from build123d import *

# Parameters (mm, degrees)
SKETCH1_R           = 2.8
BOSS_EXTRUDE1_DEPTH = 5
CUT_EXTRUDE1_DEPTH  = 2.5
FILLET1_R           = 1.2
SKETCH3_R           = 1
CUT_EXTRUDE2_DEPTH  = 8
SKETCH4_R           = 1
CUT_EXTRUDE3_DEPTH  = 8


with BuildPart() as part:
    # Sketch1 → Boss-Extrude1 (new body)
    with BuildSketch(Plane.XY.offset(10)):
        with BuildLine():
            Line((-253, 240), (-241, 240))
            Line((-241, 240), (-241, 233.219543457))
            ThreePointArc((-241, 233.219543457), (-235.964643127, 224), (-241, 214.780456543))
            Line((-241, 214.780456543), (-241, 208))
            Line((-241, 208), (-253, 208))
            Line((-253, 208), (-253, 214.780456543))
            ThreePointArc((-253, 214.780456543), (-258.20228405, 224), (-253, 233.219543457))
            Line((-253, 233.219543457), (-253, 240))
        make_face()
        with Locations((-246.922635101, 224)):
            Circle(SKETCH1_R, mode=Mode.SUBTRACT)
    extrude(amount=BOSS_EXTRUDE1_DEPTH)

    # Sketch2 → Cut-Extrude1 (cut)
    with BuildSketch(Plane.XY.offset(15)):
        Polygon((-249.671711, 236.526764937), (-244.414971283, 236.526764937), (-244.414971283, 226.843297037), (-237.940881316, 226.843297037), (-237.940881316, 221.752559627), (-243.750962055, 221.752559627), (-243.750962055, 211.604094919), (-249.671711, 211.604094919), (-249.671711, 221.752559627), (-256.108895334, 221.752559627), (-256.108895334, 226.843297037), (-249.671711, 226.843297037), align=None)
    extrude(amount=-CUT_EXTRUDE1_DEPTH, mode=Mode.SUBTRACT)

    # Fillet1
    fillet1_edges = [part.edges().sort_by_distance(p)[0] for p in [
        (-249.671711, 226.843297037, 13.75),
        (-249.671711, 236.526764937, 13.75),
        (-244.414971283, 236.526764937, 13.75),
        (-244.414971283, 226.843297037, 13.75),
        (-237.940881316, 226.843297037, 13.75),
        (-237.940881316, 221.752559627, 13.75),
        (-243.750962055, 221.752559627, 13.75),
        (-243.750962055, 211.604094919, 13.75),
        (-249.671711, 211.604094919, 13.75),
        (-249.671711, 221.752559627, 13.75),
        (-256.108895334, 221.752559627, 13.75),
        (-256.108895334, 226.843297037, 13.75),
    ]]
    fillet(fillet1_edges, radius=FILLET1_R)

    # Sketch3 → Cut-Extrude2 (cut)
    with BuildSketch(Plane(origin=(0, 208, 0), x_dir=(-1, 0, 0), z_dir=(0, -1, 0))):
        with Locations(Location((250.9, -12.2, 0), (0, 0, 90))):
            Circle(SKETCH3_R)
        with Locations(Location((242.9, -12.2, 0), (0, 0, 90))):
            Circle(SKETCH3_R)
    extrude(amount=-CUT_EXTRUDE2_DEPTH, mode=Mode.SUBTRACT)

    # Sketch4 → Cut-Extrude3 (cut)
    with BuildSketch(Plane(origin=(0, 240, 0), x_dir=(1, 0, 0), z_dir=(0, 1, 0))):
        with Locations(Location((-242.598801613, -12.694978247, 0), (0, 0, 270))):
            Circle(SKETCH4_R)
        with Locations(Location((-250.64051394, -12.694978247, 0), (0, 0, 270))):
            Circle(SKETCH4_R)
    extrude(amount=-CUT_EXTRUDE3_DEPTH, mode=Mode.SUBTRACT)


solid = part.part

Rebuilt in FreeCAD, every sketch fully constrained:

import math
import FreeCAD as App
import Part
import Sketcher
from FreeCAD import Vector
Q = App.Units.Quantity


def edges_at(feature, points):
    """Names of the edges that pass closest to the given points."""
    edges = feature.Shape.Edges
    near = lambda p: min(range(len(edges)), key=lambda i: edges[i].distToShape(Part.Vertex(*p))[0])
    return sorted({f"Edge{near(p) + 1}" for p in points})

doc = App.newDocument("Part")
params = doc.addObject("Spreadsheet::Sheet", "Params")
for row, (alias, value) in enumerate([
    ("sketch1_diameter", "5.6 mm"),
    ("sketch1_width", "12 mm"),
    ("pad1_length", "5 mm"),
    ("pocket1_length", "2.5 mm"),
    ("fillet_radius", "1.2 mm"),
    ("sketch3_diameter", "2 mm"),
    ("pocket2_length", "8 mm"),
    ("sketch4_diameter", "2 mm"),
    ("pocket3_length", "8 mm"),
], start=1):
    params.set(f"A{row}", alias)
    params.set(f"B{row}", "=" + value)
    params.setAlias(f"B{row}", alias)

body = doc.addObject("PartDesign::Body", "Body")

# Sketch on XY plane
sketch1 = body.newObject("Sketcher::SketchObject", "Sketch")
sketch1.AttachmentSupport = (doc.getObject("XY_Plane"), [""])
sketch1.MapMode = "FlatFace"
sketch1.AttachmentOffset = App.Placement(Vector(0, 0, 10), App.Rotation())
sketch1.addGeometry(Part.LineSegment(Vector(-241, 240, 0), Vector(-253, 240, 0)), False)
sketch1.addGeometry(Part.LineSegment(Vector(-253, 240, 0), Vector(-253, 233.219543, 0)), False)
sketch1.addGeometry(Part.ArcOfCircle(Part.Circle(Vector(-247.431655, 224, 0), Vector(0, 0, 1), 10.770629), math.radians(121.130795), math.radians(238.869205)), False)
sketch1.addGeometry(Part.LineSegment(Vector(-253, 214.780457, 0), Vector(-253, 208, 0)), False)
sketch1.addGeometry(Part.LineSegment(Vector(-253, 208, 0), Vector(-241, 208, 0)), False)
sketch1.addGeometry(Part.LineSegment(Vector(-241, 208, 0), Vector(-241, 214.780457, 0)), False)
sketch1.addGeometry(Part.ArcOfCircle(Part.Circle(Vector(-246.922635, 224, 0), Vector(0, 0, 1), 10.957992), math.radians(-57.283309), math.radians(57.283309)), False)
sketch1.addGeometry(Part.LineSegment(Vector(-241, 233.219543, 0), Vector(-241, 240, 0)), False)
sketch1.addGeometry(Part.Circle(Vector(-246.922635, 224, 0), Vector(0, 0, 1), 2.8), False)
sketch1.addConstraint(Sketcher.Constraint("Coincident", 0, 2, 1, 1))
sketch1.addConstraint(Sketcher.Constraint("Coincident", 1, 2, 2, 1))
sketch1.addConstraint(Sketcher.Constraint("Coincident", 2, 2, 3, 1))
sketch1.addConstraint(Sketcher.Constraint("Coincident", 3, 2, 4, 1))
sketch1.addConstraint(Sketcher.Constraint("Coincident", 4, 2, 5, 1))
sketch1.addConstraint(Sketcher.Constraint("Coincident", 5, 2, 6, 1))
sketch1.addConstraint(Sketcher.Constraint("Coincident", 6, 2, 7, 1))
sketch1.addConstraint(Sketcher.Constraint("Coincident", 7, 2, 0, 1))
sketch1.addConstraint(Sketcher.Constraint("Horizontal", 0))
sketch1.addConstraint(Sketcher.Constraint("Vertical", 1))
sketch1.addConstraint(Sketcher.Constraint("Vertical", 3))
sketch1.addConstraint(Sketcher.Constraint("Horizontal", 4))
sketch1.addConstraint(Sketcher.Constraint("Vertical", 5))
sketch1.addConstraint(Sketcher.Constraint("Vertical", 7))
sketch1.addConstraint(Sketcher.Constraint("Coincident", 8, 3, 6, 3))
sketch1.addConstraint(Sketcher.Constraint("Horizontal", 2, 3, 6, 3))
sketch1.addConstraint(Sketcher.Constraint("Horizontal", 2, 2, 5, 2))
sketch1.addConstraint(Sketcher.Constraint("Horizontal", 1, 2, 6, 2))
sketch1.addConstraint(Sketcher.Constraint("Vertical", 1, 2, 2, 2))
sketch1.addConstraint(Sketcher.Constraint("Equal", 1, 3))
sketch1.addConstraint(Sketcher.Constraint("Diameter", 8, Q("5.6 mm")))
sketch1.addConstraint(Sketcher.Constraint("DistanceX", 0, 2, 0, 1, Q("12 mm")))
sketch1.addConstraint(Sketcher.Constraint("DistanceY", -1, 1, 2, 3, Q("224 mm")))
sketch1.addConstraint(Sketcher.Constraint("DistanceX", 0, 2, -1, 1, Q("253 mm")))
sketch1.addConstraint(Sketcher.Constraint("DistanceY", -1, 1, 0, 2, Q("240 mm")))
sketch1.addConstraint(Sketcher.Constraint("Radius", 2, Q("10.770629 mm")))
sketch1.addConstraint(Sketcher.Constraint("Radius", 6, Q("10.957992 mm")))
sketch1.addConstraint(Sketcher.Constraint("DistanceY", 1, 2, 1, 1, Q("6.780457 mm")))
sketch1.setExpression("Constraints[20]", "Params.sketch1_diameter")
sketch1.setExpression("Constraints[21]", "Params.sketch1_width")
pad1 = body.newObject("PartDesign::Pad", "Pad")
pad1.Profile = sketch1
pad1.setExpression("Length", "Params.pad1_length")

# Sketch on XY plane
sketch2 = body.newObject("Sketcher::SketchObject", "Sketch001")
sketch2.AttachmentSupport = (doc.getObject("XY_Plane"), [""])
sketch2.MapMode = "FlatFace"
sketch2.AttachmentOffset = App.Placement(Vector(0, 0, 15), App.Rotation())
sketch2.addGeometry(Part.LineSegment(Vector(-244.414971, 236.526765, 0), Vector(-249.671711, 236.526765, 0)), False)
sketch2.addGeometry(Part.LineSegment(Vector(-249.671711, 236.526765, 0), Vector(-249.671711, 226.843297, 0)), False)
sketch2.addGeometry(Part.LineSegment(Vector(-249.671711, 226.843297, 0), Vector(-256.108895, 226.843297, 0)), False)
sketch2.addGeometry(Part.LineSegment(Vector(-256.108895, 226.843297, 0), Vector(-256.108895, 221.75256, 0)), False)
sketch2.addGeometry(Part.LineSegment(Vector(-256.108895, 221.75256, 0), Vector(-249.671711, 221.75256, 0)), False)
sketch2.addGeometry(Part.LineSegment(Vector(-249.671711, 221.75256, 0), Vector(-249.671711, 211.604095, 0)), False)
sketch2.addGeometry(Part.LineSegment(Vector(-249.671711, 211.604095, 0), Vector(-243.750962, 211.604095, 0)), False)
sketch2.addGeometry(Part.LineSegment(Vector(-243.750962, 211.604095, 0), Vector(-243.750962, 221.75256, 0)), False)
sketch2.addGeometry(Part.LineSegment(Vector(-243.750962, 221.75256, 0), Vector(-237.940881, 221.75256, 0)), False)
sketch2.addGeometry(Part.LineSegment(Vector(-237.940881, 221.75256, 0), Vector(-237.940881, 226.843297, 0)), False)
sketch2.addGeometry(Part.LineSegment(Vector(-237.940881, 226.843297, 0), Vector(-244.414971, 226.843297, 0)), False)
sketch2.addGeometry(Part.LineSegment(Vector(-244.414971, 226.843297, 0), Vector(-244.414971, 236.526765, 0)), False)
sketch2.addConstraint(Sketcher.Constraint("Coincident", 0, 2, 1, 1))
sketch2.addConstraint(Sketcher.Constraint("Coincident", 1, 2, 2, 1))
sketch2.addConstraint(Sketcher.Constraint("Coincident", 2, 2, 3, 1))
sketch2.addConstraint(Sketcher.Constraint("Coincident", 3, 2, 4, 1))
sketch2.addConstraint(Sketcher.Constraint("Coincident", 4, 2, 5, 1))
sketch2.addConstraint(Sketcher.Constraint("Coincident", 5, 2, 6, 1))
sketch2.addConstraint(Sketcher.Constraint("Coincident", 6, 2, 7, 1))
sketch2.addConstraint(Sketcher.Constraint("Coincident", 7, 2, 8, 1))
sketch2.addConstraint(Sketcher.Constraint("Coincident", 8, 2, 9, 1))
sketch2.addConstraint(Sketcher.Constraint("Coincident", 9, 2, 10, 1))
sketch2.addConstraint(Sketcher.Constraint("Coincident", 10, 2, 11, 1))
sketch2.addConstraint(Sketcher.Constraint("Coincident", 11, 2, 0, 1))
sketch2.addConstraint(Sketcher.Constraint("Horizontal", 0))
sketch2.addConstraint(Sketcher.Constraint("Vertical", 1))
sketch2.addConstraint(Sketcher.Constraint("Horizontal", 2))
sketch2.addConstraint(Sketcher.Constraint("Vertical", 3))
sketch2.addConstraint(Sketcher.Constraint("Horizontal", 4))
sketch2.addConstraint(Sketcher.Constraint("Vertical", 5))
sketch2.addConstraint(Sketcher.Constraint("Horizontal", 6))
sketch2.addConstraint(Sketcher.Constraint("Vertical", 7))
sketch2.addConstraint(Sketcher.Constraint("Horizontal", 8))
sketch2.addConstraint(Sketcher.Constraint("Vertical", 9))
sketch2.addConstraint(Sketcher.Constraint("Horizontal", 10))
sketch2.addConstraint(Sketcher.Constraint("Vertical", 11))
sketch2.addConstraint(Sketcher.Constraint("Horizontal", 4, 2, 7, 2))
sketch2.addConstraint(Sketcher.Constraint("Horizontal", 2, 2, 9, 2))
sketch2.addConstraint(Sketcher.Constraint("Vertical", 1, 2, 4, 2))
sketch2.addConstraint(Sketcher.Constraint("DistanceX", 0, 2, 0, 1, Q("5.25674 mm")))
sketch2.addConstraint(Sketcher.Constraint("DistanceX", 6, 1, 6, 2, Q("5.920749 mm")))
sketch2.addConstraint(Sketcher.Constraint("DistanceX", 8, 1, 8, 2, Q("5.810081 mm")))
sketch2.addConstraint(Sketcher.Constraint("DistanceX", 2, 2, 2, 1, Q("6.437184 mm")))
sketch2.addConstraint(Sketcher.Constraint("DistanceY", 1, 2, 1, 1, Q("9.683468 mm")))
sketch2.addConstraint(Sketcher.Constraint("DistanceY", 3, 2, 3, 1, Q("5.090737 mm")))
sketch2.addConstraint(Sketcher.Constraint("DistanceY", 5, 2, 5, 1, Q("10.148465 mm")))
sketch2.addConstraint(Sketcher.Constraint("DistanceX", 0, 2, -1, 1, Q("249.671711 mm")))
sketch2.addConstraint(Sketcher.Constraint("DistanceY", -1, 1, 3, 2, Q("221.75256 mm")))
pocket1 = body.newObject("PartDesign::Pocket", "Pocket")
pocket1.Profile = sketch2
pocket1.setExpression("Length", "Params.pocket1_length")
doc.recompute()

fillet = body.newObject("PartDesign::Fillet", "Fillet")
fillet.Base = (pocket1, edges_at(pocket1, [
    (-249.672, 226.843, 13.75),
    (-249.672, 236.527, 13.75),
    (-244.415, 236.527, 13.75),
    (-244.415, 226.843, 13.75),
    (-237.941, 226.843, 13.75),
    (-237.941, 221.753, 13.75),
    (-243.751, 221.753, 13.75),
    (-243.751, 211.604, 13.75),
    (-249.672, 211.604, 13.75),
    (-249.672, 221.753, 13.75),
    (-256.109, 221.753, 13.75),
    (-256.109, 226.843, 13.75),
]))
fillet.setExpression("Radius", "Params.fillet_radius")

# Sketch on XZ plane
sketch3 = body.newObject("Sketcher::SketchObject", "Sketch002")
sketch3.AttachmentSupport = (doc.getObject("XZ_Plane"), [""])
sketch3.MapMode = "FlatFace"
sketch3.AttachmentOffset = App.Placement(Vector(0, 0, -208), App.Rotation())
sketch3.addGeometry(Part.Circle(Vector(-250.9, 12.2, 0), Vector(0, 0, 1), 1), False)
sketch3.addGeometry(Part.Circle(Vector(-242.9, 12.2, 0), Vector(0, 0, 1), 1), False)
sketch3.addConstraint(Sketcher.Constraint("Equal", 0, 1))
sketch3.addConstraint(Sketcher.Constraint("Horizontal", 0, 3, 1, 3))
sketch3.addConstraint(Sketcher.Constraint("Diameter", 0, Q("2 mm")))
sketch3.addConstraint(Sketcher.Constraint("DistanceX", 0, 3, 1, 3, Q("8 mm")))
sketch3.addConstraint(Sketcher.Constraint("DistanceX", 0, 3, -1, 1, Q("250.9 mm")))
sketch3.addConstraint(Sketcher.Constraint("DistanceY", -1, 1, 0, 3, Q("12.2 mm")))
sketch3.setExpression("Constraints[2]", "Params.sketch3_diameter")
pocket2 = body.newObject("PartDesign::Pocket", "Pocket001")
pocket2.Profile = sketch3
pocket2.setExpression("Length", "Params.pocket2_length")

# Sketch on XZ plane
sketch4 = body.newObject("Sketcher::SketchObject", "Sketch003")
sketch4.AttachmentSupport = (doc.getObject("XZ_Plane"), [""])
sketch4.MapMode = "FlatFace"
sketch4.AttachmentOffset = App.Placement(Vector(0, 0, -240), App.Rotation())
sketch4.addGeometry(Part.Circle(Vector(-242.598802, 12.694978, 0), Vector(0, 0, 1), 1), False)
sketch4.addGeometry(Part.Circle(Vector(-250.640514, 12.694978, 0), Vector(0, 0, 1), 1), False)
sketch4.addConstraint(Sketcher.Constraint("Equal", 0, 1))
sketch4.addConstraint(Sketcher.Constraint("Horizontal", 0, 3, 1, 3))
sketch4.addConstraint(Sketcher.Constraint("Diameter", 0, Q("2 mm")))
sketch4.addConstraint(Sketcher.Constraint("DistanceX", 0, 3, -1, 1, Q("242.598802 mm")))
sketch4.addConstraint(Sketcher.Constraint("DistanceY", -1, 1, 0, 3, Q("12.694978 mm")))
sketch4.addConstraint(Sketcher.Constraint("DistanceX", 1, 3, -1, 1, Q("250.640514 mm")))
sketch4.setExpression("Constraints[2]", "Params.sketch4_diameter")
pocket3 = body.newObject("PartDesign::Pocket", "Pocket002")
pocket3.Profile = sketch4
pocket3.setExpression("Length", "Params.pocket3_length")
pocket3.Reversed = True

doc.recompute()
